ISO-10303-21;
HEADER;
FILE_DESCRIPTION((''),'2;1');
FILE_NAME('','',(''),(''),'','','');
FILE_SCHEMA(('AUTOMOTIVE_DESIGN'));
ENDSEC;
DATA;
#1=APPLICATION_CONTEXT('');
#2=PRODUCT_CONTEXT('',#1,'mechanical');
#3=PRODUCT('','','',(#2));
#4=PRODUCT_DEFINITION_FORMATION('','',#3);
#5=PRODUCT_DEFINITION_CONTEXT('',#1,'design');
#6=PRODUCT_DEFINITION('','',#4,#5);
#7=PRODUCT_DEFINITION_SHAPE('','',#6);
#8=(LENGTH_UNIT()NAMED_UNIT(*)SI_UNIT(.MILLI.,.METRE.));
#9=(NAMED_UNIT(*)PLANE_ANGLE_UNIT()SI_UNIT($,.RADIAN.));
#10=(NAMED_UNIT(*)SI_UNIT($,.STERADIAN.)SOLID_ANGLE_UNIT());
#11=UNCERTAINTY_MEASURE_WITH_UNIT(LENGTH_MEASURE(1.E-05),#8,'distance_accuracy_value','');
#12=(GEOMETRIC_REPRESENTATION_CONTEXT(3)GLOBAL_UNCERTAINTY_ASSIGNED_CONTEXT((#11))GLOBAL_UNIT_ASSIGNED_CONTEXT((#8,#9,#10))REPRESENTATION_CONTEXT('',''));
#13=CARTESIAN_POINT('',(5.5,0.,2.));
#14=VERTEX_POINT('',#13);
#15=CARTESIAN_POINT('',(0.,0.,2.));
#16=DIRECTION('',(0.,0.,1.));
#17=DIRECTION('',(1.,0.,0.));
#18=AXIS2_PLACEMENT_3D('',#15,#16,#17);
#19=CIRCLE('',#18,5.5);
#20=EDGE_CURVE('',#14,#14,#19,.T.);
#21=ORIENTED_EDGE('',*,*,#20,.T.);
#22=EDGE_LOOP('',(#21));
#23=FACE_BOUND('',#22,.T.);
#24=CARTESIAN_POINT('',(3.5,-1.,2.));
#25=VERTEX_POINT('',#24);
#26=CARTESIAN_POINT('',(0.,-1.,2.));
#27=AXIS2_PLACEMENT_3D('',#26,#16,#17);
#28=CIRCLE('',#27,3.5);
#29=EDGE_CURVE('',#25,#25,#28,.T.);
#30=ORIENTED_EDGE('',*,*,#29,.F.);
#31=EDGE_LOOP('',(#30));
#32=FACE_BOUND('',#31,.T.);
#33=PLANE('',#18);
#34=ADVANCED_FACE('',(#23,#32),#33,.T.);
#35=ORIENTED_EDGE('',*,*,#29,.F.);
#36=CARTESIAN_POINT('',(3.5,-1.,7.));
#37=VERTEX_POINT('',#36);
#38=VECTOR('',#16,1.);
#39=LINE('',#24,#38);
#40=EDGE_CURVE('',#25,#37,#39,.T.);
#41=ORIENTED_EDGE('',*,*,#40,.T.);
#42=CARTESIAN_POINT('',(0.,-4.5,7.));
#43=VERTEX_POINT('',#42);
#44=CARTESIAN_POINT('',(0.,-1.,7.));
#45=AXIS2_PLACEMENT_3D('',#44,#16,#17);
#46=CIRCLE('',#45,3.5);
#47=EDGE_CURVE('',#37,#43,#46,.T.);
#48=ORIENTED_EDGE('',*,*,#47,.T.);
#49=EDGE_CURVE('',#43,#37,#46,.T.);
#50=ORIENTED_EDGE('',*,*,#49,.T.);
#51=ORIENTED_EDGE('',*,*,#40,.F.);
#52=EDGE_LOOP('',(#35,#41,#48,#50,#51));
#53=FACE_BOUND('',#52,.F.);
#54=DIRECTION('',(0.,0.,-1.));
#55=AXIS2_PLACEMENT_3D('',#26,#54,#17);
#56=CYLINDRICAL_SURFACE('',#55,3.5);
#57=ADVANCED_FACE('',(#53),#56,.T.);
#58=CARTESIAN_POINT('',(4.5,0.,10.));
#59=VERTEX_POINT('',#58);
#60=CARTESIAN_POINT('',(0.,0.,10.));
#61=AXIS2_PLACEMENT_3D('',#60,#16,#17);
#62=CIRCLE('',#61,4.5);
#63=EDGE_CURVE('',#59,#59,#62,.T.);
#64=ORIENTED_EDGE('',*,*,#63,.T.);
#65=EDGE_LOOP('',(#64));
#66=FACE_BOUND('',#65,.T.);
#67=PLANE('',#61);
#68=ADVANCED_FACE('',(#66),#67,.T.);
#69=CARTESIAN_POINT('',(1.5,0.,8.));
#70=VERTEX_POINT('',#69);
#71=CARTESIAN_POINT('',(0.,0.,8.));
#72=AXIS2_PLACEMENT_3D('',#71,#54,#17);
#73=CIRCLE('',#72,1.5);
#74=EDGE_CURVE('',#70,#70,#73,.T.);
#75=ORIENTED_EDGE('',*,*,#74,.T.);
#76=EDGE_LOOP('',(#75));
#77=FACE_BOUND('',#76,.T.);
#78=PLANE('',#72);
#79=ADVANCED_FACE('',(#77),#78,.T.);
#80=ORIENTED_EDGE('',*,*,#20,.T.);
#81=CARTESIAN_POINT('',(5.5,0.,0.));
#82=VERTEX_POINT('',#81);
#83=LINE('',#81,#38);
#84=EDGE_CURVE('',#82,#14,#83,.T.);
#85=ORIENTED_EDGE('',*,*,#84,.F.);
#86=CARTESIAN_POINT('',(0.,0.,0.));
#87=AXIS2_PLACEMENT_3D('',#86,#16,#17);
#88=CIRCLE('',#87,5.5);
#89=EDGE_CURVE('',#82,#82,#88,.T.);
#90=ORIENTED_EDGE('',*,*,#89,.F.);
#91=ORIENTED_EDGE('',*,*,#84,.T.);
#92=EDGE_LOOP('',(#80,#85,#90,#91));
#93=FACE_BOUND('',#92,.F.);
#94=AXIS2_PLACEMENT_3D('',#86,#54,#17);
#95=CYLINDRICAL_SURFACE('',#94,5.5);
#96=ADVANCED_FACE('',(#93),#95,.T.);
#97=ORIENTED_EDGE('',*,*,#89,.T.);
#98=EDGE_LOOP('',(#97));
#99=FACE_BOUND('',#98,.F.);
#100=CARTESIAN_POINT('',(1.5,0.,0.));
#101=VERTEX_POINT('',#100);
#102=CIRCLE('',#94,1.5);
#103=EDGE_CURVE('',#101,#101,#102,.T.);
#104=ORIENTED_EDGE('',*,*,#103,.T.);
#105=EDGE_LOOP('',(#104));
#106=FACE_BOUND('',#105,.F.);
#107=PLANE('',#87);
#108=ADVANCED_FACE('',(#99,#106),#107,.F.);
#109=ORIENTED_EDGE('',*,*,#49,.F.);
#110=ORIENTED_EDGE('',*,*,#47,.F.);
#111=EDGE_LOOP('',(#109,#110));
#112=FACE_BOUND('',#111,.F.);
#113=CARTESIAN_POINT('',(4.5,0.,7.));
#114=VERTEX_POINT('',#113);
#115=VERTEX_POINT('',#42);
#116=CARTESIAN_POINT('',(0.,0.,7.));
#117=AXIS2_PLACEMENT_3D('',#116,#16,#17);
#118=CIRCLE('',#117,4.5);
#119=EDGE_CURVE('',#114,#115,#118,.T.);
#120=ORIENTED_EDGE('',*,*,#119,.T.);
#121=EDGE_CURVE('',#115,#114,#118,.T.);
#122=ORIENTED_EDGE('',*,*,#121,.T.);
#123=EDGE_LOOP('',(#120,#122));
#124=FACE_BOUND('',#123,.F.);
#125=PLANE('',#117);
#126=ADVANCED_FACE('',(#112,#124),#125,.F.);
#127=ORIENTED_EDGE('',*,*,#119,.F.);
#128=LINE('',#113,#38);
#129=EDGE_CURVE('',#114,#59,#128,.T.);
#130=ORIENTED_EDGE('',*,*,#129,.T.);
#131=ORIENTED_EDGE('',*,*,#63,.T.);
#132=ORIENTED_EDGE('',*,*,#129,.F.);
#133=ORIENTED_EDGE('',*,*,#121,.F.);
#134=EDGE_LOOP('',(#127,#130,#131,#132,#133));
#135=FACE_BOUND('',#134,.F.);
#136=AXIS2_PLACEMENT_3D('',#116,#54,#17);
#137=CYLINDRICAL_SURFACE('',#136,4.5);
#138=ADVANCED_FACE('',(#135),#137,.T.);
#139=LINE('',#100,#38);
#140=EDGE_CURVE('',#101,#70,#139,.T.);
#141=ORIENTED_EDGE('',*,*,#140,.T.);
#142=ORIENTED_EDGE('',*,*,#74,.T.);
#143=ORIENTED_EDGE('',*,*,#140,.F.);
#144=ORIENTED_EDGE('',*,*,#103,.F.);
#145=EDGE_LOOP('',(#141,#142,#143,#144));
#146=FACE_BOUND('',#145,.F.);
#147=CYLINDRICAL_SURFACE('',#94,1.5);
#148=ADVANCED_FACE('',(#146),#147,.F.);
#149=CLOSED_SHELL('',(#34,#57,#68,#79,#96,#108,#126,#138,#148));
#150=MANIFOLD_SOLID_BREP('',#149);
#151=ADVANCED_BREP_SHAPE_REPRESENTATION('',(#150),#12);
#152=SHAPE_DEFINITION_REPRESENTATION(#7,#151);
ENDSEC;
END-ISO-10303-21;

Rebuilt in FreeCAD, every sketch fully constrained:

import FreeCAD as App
import Part
import Sketcher

doc = App.newDocument("Part")
body = doc.addObject("PartDesign::Body", "Body")

sketch1 = body.newObject("Sketcher::SketchObject", "Sketch")
sketch1.AttachmentSupport = (doc.getObject("XY_Plane"), [""])
sketch1.MapMode = "FlatFace"
sketch1.addGeometry(Part.Circle(App.Vector(0, 0, 0), App.Vector(0, 0, 1), 5.5), False)
sketch1.addConstraint([
    Sketcher.Constraint("Coincident", 0, 3, -1, 1),
    Sketcher.Constraint("Diameter", 0, 11.0),
])
pad1 = body.newObject("PartDesign::Pad", "Pad")
pad1.Profile = sketch1
pad1.Length = 2

sketch2 = body.newObject("Sketcher::SketchObject", "Sketch001")
sketch2.AttachmentSupport = (doc.getObject("XY_Plane"), [""])
sketch2.MapMode = "FlatFace"
sketch2.AttachmentOffset = App.Placement(App.Vector(0, 0, 2), App.Rotation())
sketch2.addGeometry(Part.Circle(App.Vector(0, -1, 0), App.Vector(0, 0, 1), 3.5), False)
sketch2.addConstraint([
    Sketcher.Constraint("PointOnObject", 0, 3, -2),
    Sketcher.Constraint("Diameter", 0, 7.0),
    Sketcher.Constraint("DistanceY", 0, 3, -1, 1, 1.0),
])
pad2 = body.newObject("PartDesign::Pad", "Pad001")
pad2.Profile = sketch2
pad2.Length = 5

sketch3 = body.newObject("Sketcher::SketchObject", "Sketch002")
sketch3.AttachmentSupport = (doc.getObject("XY_Plane"), [""])
sketch3.MapMode = "FlatFace"
sketch3.AttachmentOffset = App.Placement(App.Vector(0, 0, 7), App.Rotation())
sketch3.addGeometry(Part.Circle(App.Vector(0, 0, 0), App.Vector(0, 0, 1), 4.5), False)
sketch3.addConstraint([
    Sketcher.Constraint("Coincident", 0, 3, -1, 1),
    Sketcher.Constraint("Diameter", 0, 9.0),
])
pad3 = body.newObject("PartDesign::Pad", "Pad002")
pad3.Profile = sketch3
pad3.Length = 3

sketch4 = body.newObject("Sketcher::SketchObject", "Sketch003")
sketch4.AttachmentSupport = (doc.getObject("XY_Plane"), [""])
sketch4.MapMode = "FlatFace"
sketch4.addGeometry(Part.Circle(App.Vector(0, 0, 0), App.Vector(0, 0, 1), 1.5), False)
sketch4.addConstraint([
    Sketcher.Constraint("Coincident", 0, 3, -1, 1),
    Sketcher.Constraint("Diameter", 0, 3.0),
])
pocket1 = body.newObject("PartDesign::Pocket", "Pocket")
pocket1.Profile = sketch4
pocket1.Length = 8
pocket1.Reversed = True

doc.recompute()
